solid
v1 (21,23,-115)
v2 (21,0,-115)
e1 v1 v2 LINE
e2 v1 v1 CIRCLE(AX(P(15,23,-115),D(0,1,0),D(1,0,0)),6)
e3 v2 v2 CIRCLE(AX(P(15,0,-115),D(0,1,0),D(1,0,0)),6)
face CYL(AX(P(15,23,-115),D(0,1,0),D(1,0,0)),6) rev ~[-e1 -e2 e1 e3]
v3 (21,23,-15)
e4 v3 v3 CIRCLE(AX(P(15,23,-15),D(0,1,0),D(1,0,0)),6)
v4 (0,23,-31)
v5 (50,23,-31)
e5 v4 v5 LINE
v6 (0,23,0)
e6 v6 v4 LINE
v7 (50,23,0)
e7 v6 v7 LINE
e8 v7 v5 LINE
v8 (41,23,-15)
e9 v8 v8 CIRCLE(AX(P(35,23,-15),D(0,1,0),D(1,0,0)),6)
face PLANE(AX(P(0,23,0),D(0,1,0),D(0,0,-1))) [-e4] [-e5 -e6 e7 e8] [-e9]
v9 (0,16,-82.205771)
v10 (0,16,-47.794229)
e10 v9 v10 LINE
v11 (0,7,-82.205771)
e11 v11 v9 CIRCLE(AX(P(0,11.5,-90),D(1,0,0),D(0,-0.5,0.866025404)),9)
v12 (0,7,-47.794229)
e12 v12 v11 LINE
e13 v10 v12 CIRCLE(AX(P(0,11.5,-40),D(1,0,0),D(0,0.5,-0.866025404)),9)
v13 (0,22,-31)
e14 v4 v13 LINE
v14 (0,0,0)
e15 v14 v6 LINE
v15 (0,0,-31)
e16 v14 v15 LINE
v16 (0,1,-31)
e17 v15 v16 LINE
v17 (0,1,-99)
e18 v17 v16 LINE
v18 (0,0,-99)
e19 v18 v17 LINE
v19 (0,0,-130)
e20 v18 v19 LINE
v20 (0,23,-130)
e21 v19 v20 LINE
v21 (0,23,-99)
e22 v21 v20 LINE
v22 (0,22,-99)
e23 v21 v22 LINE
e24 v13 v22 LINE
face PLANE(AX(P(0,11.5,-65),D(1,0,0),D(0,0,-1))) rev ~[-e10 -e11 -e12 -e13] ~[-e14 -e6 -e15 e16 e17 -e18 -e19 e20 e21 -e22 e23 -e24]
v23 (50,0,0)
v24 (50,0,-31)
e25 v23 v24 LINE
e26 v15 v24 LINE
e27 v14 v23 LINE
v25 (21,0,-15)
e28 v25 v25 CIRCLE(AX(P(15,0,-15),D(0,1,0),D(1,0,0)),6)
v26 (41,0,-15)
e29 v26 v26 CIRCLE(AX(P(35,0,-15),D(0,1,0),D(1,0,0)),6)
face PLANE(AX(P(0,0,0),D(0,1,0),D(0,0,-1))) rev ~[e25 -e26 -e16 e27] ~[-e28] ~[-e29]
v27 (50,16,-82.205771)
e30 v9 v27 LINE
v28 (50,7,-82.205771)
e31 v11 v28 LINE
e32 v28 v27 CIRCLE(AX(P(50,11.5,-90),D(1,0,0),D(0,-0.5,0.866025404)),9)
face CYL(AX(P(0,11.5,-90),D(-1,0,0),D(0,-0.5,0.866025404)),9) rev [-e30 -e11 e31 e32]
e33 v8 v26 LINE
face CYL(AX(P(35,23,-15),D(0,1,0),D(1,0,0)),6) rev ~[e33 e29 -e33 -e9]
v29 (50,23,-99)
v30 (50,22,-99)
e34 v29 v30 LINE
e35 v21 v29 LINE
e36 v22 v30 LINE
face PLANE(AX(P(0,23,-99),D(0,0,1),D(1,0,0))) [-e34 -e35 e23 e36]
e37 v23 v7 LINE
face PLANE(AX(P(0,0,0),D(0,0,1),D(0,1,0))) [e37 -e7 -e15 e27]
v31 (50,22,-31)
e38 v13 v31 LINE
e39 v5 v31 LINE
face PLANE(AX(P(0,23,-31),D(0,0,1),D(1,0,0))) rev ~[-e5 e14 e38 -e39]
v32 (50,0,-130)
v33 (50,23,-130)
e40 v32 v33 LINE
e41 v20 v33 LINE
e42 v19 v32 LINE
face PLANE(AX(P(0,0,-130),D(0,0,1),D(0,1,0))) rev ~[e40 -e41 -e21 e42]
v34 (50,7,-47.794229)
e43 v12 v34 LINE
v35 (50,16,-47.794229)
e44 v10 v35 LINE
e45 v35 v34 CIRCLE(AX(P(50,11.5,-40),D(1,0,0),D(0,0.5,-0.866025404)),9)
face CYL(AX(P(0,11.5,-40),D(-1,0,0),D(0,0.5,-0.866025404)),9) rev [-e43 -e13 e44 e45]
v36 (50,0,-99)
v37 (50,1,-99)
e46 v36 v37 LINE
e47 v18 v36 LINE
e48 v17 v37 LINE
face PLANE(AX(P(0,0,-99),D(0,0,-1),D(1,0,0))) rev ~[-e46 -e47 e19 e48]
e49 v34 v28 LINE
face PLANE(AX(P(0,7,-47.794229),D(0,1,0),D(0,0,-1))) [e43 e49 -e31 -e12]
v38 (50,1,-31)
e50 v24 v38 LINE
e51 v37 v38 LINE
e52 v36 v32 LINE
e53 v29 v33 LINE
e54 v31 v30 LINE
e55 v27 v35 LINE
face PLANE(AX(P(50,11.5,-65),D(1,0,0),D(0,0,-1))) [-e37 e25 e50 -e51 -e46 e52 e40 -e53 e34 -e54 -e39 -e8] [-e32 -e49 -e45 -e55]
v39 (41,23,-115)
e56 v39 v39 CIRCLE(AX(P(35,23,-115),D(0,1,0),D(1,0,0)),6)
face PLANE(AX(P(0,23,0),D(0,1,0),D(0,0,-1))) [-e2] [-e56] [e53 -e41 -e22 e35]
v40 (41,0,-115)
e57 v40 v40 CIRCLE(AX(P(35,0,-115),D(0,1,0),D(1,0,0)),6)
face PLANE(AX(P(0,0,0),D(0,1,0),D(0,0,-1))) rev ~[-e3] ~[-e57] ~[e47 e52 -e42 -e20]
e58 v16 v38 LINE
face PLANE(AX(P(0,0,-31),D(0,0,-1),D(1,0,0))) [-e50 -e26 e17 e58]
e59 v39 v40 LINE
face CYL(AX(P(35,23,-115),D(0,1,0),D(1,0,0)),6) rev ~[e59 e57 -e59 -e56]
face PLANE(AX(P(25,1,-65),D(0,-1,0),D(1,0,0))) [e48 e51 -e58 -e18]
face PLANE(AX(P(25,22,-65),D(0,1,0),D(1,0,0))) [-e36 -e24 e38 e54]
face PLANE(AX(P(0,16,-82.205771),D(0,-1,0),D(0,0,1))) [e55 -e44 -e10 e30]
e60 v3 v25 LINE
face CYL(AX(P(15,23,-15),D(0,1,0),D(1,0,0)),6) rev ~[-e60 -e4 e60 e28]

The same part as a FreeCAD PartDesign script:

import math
import FreeCAD as App
import Part
import Sketcher

V = App.Vector


def add_polygon(sketch, points):
    """Adds a closed chain of lines whose ends are joined by coincident constraints."""
    first, n = sketch.GeometryCount, len(points)
    for a, b in zip(points, points[1:] + points[:1]):
        sketch.addGeometry(Part.LineSegment(App.Vector(*a, 0), App.Vector(*b, 0)), False)
    for i in range(n):
        sketch.addConstraint(Sketcher.Constraint("Coincident", first + i, 2, first + (i + 1) % n, 1))

doc = App.newDocument("Part")
params = doc.addObject("Spreadsheet::Sheet", "Params")
for row, (alias, value) in enumerate([
    ("sketch1_radius", "9 mm"),
    ("sketch1_width", "23 mm"),
    ("sketch1_height", "130 mm"),
    ("pad1_length", "50 mm"),
    ("sketch2_diameter", "12 mm"),
    ("pocket1_length", "23 mm"),
    ("sketch3_width", "50 mm"),
    ("sketch3_height", "68 mm"),
    ("pocket2_length", "1 mm"),
    ("sketch4_width", "50 mm"),
    ("sketch4_height", "68 mm"),
    ("pocket3_length", "1 mm"),
], start=1):
    params.set(f"A{row}", alias)
    params.set(f"B{row}", "=" + value)
    params.setAlias(f"B{row}", alias)

body = doc.addObject("PartDesign::Body", "Body")

sketch1 = body.newObject("Sketcher::SketchObject", "Sketch")
sketch1.AttachmentSupport = (doc.getObject("YZ_Plane"), [""])
sketch1.MapMode = "FlatFace"
add_polygon(sketch1, [(23, 0), (0, 0), (0, -130), (23, -130)])
sketch1.addGeometry(Part.LineSegment(V(16, -48, 0), V(16, -82, 0)), False)
sketch1.addGeometry(Part.ArcOfCircle(Part.Circle(V(12, -90, 0), V(0, 0, 1), 9), math.radians(120), math.radians(420)), False)
sketch1.addGeometry(Part.LineSegment(V(7, -82, 0), V(7, -48, 0)), False)
sketch1.addGeometry(Part.ArcOfCircle(Part.Circle(V(12, -40, 0), V(0, 0, 1), 9), math.radians(-60), math.radians(240)), False)
sketch1.addConstraint([
    Sketcher.Constraint("Coincident", 4, 2, 5, 2),
    Sketcher.Constraint("Coincident", 5, 1, 6, 1),
    Sketcher.Constraint("Coincident", 6, 2, 7, 2),
    Sketcher.Constraint("Coincident", 7, 1, 4, 1),
    Sketcher.Constraint("Horizontal", 0),
    Sketcher.Constraint("Vertical", 1),
    Sketcher.Constraint("Horizontal", 2),
    Sketcher.Constraint("Vertical", 3),
    Sketcher.Constraint("Vertical", 4),
    Sketcher.Constraint("Vertical", 6),
    Sketcher.Constraint("Coincident", 0, 2, -1, 1),
    Sketcher.Constraint("Equal", 5, 7),
    Sketcher.Constraint("Horizontal", 4, 2, 5, 1),
    Sketcher.Constraint("Horizontal", 6, 2, 7, 1),
    Sketcher.Constraint("Radius", 5, 9.0),
    Sketcher.Constraint("DistanceX", 0, 2, 0, 1, 23.0),
    Sketcher.Constraint("DistanceY", 1, 2, 1, 1, 130.0),
    Sketcher.Constraint("DistanceY", 5, 3, -1, 1, 90.0),
    Sketcher.Constraint("DistanceY", 7, 3, -1, 1, 40.0),
    Sketcher.Constraint("DistanceX", -1, 1, 4, 2, 16.0),
    Sketcher.Constraint("DistanceX", -1, 1, 5, 1, 7.0),
])
sketch1.setExpression("Constraints[18]", "Params.sketch1_radius")
sketch1.setExpression("Constraints[19]", "Params.sketch1_width")
sketch1.setExpression("Constraints[20]", "Params.sketch1_height")
pad1 = body.newObject("PartDesign::Pad", "Pad")
pad1.Profile = sketch1
pad1.setExpression("Length", "Params.pad1_length")

sketch2 = body.newObject("Sketcher::SketchObject", "Sketch001")
sketch2.AttachmentSupport = (doc.getObject("XZ_Plane"), [""])
sketch2.MapMode = "FlatFace"
sketch2.AttachmentOffset = App.Placement(V(0, 0, -23), App.Rotation())
sketch2.addGeometry([
    Part.Circle(V(15, -15, 0), V(0, 0, 1), 6),
    Part.Circle(V(35, -15, 0), V(0, 0, 1), 6),
    Part.Circle(V(15, -115, 0), V(0, 0, 1), 6),
    Part.Circle(V(35, -115, 0), V(0, 0, 1), 6),
], False)
sketch2.addConstraint([
    Sketcher.Constraint("Equal", 0, 1),
    Sketcher.Constraint("Equal", 1, 2),
    Sketcher.Constraint("Equal", 2, 3),
    Sketcher.Constraint("Horizontal", 0, 3, 1, 3),
    Sketcher.Constraint("Horizontal", 2, 3, 3, 3),
    Sketcher.Constraint("Vertical", 0, 3, 2, 3),
    Sketcher.Constraint("Vertical", 1, 3, 3, 3),
    Sketcher.Constraint("Diameter", 0, 12.0),
    Sketcher.Constraint("DistanceX", -1, 1, 0, 3, 15.0),
    Sketcher.Constraint("DistanceY", 0, 3, -1, 1, 15.0),
    Sketcher.Constraint("DistanceX", -1, 1, 1, 3, 35.0),
    Sketcher.Constraint("DistanceY", 2, 3, -1, 1, 115.0),
])
sketch2.setExpression("Constraints[7]", "Params.sketch2_diameter")
pocket1 = body.newObject("PartDesign::Pocket", "Pocket")
pocket1.Profile = sketch2
pocket1.setExpression("Length", "Params.pocket1_length")
pocket1.Reversed = True

sketch3 = body.newObject("Sketcher::SketchObject", "Sketch002")
sketch3.AttachmentSupport = (doc.getObject("XZ_Plane"), [""])
sketch3.MapMode = "FlatFace"
sketch3.AttachmentOffset = App.Placement(V(0, 0, -23), App.Rotation())
add_polygon(sketch3, [(0, -99), (0, -31), (50, -31), (50, -99)])
sketch3.addConstraint([
    Sketcher.Constraint("Vertical", 0),
    Sketcher.Constraint("Horizontal", 1),
    Sketcher.Constraint("Vertical", 2),
    Sketcher.Constraint("Horizontal", 3),
    Sketcher.Constraint("PointOnObject", 0, 2, -2),
    Sketcher.Constraint("DistanceX", 1, 1, 1, 2, 50.0),
    Sketcher.Constraint("DistanceY", 0, 1, 0, 2, 68.0),
    Sketcher.Constraint("DistanceY", 0, 2, -1, 1, 31.0),
])
sketch3.setExpression("Constraints[9]", "Params.sketch3_width")
sketch3.setExpression("Constraints[10]", "Params.sketch3_height")
pocket2 = body.newObject("PartDesign::Pocket", "Pocket001")
pocket2.Profile = sketch3
pocket2.setExpression("Length", "Params.pocket2_length")
pocket2.Reversed = True

sketch4 = body.newObject("Sketcher::SketchObject", "Sketch003")
sketch4.AttachmentSupport = (doc.getObject("XZ_Plane"), [""])
sketch4.MapMode = "FlatFace"
add_polygon(sketch4, [(0, -31), (0, -99), (50, -99), (50, -31)])
sketch4.addConstraint([
    Sketcher.Constraint("Vertical", 0),
    Sketcher.Constraint("Horizontal", 1),
    Sketcher.Constraint("Vertical", 2),
    Sketcher.Constraint("Horizontal", 3),
    Sketcher.Constraint("PointOnObject", 0, 2, -2),
    Sketcher.Constraint("DistanceX", 1, 1, 1, 2, 50.0),
    Sketcher.Constraint("DistanceY", 0, 2, 0, 1, 68.0),
    Sketcher.Constraint("DistanceY", 0, 2, -1, 1, 99.0),
])
sketch4.setExpression("Constraints[9]", "Params.sketch4_width")
sketch4.setExpression("Constraints[10]", "Params.sketch4_height")
pocket3 = body.newObject("PartDesign::Pocket", "Pocket002")
pocket3.Profile = sketch4
pocket3.setExpression("Length", "Params.pocket3_length")

doc.recompute()
